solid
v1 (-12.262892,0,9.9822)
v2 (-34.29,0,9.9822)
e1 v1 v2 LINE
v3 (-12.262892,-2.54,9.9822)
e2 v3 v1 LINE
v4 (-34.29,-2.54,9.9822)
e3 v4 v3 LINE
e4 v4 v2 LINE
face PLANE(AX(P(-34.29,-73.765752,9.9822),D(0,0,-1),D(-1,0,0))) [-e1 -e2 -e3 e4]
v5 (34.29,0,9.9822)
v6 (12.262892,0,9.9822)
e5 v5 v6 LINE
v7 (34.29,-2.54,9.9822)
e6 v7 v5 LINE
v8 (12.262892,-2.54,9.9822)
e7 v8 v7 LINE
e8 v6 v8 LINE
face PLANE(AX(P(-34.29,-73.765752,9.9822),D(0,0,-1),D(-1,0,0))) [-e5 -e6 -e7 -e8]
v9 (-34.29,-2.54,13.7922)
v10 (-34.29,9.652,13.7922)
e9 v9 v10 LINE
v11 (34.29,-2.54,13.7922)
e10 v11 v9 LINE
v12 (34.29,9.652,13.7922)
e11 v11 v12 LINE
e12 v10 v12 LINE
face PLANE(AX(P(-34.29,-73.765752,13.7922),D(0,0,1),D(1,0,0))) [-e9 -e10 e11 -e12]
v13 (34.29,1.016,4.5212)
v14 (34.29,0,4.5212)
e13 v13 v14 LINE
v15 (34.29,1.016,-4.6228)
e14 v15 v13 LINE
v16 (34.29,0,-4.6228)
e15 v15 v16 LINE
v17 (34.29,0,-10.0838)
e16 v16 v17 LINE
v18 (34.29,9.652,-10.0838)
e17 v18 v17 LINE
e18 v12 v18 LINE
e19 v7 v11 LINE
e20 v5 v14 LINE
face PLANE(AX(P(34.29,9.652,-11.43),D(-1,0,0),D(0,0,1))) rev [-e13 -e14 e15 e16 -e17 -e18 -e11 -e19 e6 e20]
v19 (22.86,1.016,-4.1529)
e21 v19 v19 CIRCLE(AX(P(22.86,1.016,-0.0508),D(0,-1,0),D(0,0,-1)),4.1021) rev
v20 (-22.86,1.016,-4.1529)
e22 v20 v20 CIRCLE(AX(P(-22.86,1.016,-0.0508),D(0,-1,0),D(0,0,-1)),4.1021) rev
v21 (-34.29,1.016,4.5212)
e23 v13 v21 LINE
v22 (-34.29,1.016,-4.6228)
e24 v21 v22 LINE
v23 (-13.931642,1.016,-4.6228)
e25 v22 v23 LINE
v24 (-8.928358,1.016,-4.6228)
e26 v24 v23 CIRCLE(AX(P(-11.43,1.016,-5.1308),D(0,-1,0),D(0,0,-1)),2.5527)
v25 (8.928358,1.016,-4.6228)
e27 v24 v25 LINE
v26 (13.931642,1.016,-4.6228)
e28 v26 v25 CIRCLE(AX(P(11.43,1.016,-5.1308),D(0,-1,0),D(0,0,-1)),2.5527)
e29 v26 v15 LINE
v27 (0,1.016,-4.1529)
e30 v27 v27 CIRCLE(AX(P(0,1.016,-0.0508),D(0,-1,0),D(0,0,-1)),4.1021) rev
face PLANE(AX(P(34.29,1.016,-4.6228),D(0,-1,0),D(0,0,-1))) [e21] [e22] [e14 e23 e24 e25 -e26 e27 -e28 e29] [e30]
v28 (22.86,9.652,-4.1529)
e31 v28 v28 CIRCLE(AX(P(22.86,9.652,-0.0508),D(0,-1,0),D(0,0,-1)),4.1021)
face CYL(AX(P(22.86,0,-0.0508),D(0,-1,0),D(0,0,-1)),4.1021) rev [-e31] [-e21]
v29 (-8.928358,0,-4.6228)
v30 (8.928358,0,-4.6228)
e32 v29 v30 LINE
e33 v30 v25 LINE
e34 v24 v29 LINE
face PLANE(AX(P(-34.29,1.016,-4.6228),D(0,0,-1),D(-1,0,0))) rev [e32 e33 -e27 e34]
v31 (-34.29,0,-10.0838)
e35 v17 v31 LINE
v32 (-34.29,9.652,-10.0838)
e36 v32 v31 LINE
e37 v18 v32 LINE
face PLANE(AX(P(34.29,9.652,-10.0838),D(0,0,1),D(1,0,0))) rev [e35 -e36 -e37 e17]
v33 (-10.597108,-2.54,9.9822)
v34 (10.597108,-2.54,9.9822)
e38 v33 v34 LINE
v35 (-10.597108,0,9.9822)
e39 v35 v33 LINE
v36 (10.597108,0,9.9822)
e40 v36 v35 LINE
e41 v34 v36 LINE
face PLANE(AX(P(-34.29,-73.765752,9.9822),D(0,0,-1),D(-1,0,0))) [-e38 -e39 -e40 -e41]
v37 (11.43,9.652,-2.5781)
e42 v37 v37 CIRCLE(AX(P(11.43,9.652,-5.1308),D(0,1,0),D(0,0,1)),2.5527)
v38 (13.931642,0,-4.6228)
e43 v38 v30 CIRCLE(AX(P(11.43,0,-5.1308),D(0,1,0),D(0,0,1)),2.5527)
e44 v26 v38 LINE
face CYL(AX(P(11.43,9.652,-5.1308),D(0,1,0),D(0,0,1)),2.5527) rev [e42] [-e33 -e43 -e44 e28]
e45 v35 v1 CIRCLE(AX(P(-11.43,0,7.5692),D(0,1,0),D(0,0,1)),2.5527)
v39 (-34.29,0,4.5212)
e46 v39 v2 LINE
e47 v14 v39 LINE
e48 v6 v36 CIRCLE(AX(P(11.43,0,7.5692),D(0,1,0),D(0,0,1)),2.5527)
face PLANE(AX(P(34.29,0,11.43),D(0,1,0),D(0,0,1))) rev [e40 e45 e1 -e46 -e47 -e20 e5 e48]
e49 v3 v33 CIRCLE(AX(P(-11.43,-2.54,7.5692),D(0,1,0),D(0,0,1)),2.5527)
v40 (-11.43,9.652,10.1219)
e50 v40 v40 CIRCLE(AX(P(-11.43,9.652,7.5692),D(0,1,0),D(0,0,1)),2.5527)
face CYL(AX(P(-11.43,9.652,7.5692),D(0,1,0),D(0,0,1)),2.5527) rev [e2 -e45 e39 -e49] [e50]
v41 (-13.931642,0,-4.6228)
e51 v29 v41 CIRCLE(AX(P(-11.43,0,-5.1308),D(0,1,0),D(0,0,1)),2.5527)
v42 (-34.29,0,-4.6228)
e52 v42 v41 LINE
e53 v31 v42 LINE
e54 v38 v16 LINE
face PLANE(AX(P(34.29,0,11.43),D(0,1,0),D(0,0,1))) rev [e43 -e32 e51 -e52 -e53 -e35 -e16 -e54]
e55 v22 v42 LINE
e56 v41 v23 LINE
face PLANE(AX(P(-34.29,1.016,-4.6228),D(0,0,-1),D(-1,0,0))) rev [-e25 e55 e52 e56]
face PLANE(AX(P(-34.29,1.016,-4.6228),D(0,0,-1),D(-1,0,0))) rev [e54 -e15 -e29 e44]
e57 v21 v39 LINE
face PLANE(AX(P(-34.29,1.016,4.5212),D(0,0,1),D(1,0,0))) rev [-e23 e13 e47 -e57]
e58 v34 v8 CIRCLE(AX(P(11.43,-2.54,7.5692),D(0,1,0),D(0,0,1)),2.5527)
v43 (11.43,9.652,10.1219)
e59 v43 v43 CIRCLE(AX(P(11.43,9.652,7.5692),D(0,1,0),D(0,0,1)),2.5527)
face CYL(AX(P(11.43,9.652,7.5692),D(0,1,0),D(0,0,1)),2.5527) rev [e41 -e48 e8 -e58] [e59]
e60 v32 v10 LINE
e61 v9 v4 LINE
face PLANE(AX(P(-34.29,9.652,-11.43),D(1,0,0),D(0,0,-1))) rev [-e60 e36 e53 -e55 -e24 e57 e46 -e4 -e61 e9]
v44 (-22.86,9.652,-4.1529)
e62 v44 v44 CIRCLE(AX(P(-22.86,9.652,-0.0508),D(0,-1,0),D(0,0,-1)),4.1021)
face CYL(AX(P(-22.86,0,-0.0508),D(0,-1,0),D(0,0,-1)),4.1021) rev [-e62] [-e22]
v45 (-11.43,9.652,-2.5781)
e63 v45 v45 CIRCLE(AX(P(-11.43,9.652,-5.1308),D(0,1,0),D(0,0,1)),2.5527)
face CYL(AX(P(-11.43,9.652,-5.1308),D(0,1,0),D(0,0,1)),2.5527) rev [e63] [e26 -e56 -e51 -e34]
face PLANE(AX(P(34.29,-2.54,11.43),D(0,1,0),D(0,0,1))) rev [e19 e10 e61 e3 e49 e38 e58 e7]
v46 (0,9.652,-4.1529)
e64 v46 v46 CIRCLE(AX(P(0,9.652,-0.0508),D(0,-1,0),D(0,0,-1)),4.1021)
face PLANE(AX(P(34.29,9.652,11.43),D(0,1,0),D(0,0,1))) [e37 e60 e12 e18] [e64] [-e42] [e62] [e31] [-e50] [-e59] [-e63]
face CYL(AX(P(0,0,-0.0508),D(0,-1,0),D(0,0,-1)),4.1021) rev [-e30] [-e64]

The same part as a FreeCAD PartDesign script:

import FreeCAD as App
import Part
import Sketcher

V = App.Vector
Q = App.Units.Quantity

doc = App.newDocument("Part")
body = doc.addObject("PartDesign::Body", "Body")

sketch1 = body.newObject("Sketcher::SketchObject", "Sketch")
sketch1.AttachmentSupport = (doc.getObject("XZ_Plane"), [""])
sketch1.MapMode = "FlatFace"
sketch1.addGeometry([
    Part.LineSegment(V(-34, -11, 0), V(-34, 11, 0)),
    Part.LineSegment(V(-34, 11, 0), V(34, 11, 0)),
    Part.LineSegment(V(34, 11, 0), V(34, -11, 0)),
    Part.LineSegment(V(34, -11, 0), V(-34, -11, 0)),
], False)
sketch1.addConstraint([
    Sketcher.Constraint("Coincident", 0, 2, 1, 1),
    Sketcher.Constraint("Coincident", 1, 2, 2, 1),
    Sketcher.Constraint("Coincident", 2, 2, 3, 1),
    Sketcher.Constraint("Coincident", 3, 2, 0, 1),
    Sketcher.Constraint("Vertical", 0),
    Sketcher.Constraint("Horizontal", 1),
    Sketcher.Constraint("Vertical", 2),
    Sketcher.Constraint("Horizontal", 3),
    Sketcher.Constraint("Symmetric", 0, 2, 2, 2, -1, 1),
    Sketcher.Constraint("DistanceX", 1, 1, 1, 2, Q("2.7 in")),
    Sketcher.Constraint("DistanceY", 0, 1, 0, 2, Q("0.9 in")),
])
pad1 = body.newObject("PartDesign::Pad", "Pad")
pad1.Profile = sketch1
pad1.Length = Q("0.38 in")
pad1.Reversed = True

sketch2 = body.newObject("Sketcher::SketchObject", "Sketch001")
sketch2.AttachmentSupport = (doc.getObject("XZ_Plane"), [""])
sketch2.MapMode = "FlatFace"
sketch2.AttachmentOffset = App.Placement(V(0, 0, -0.38 * 25.4), App.Rotation())
sketch2.addGeometry([
    Part.LineSegment(V(-34.3, 10, 0), V(-34.3, 13.8, 0)),
    Part.LineSegment(V(-34.3, 13.8, 0), V(34.3, 13.8, 0)),
    Part.LineSegment(V(34.3, 13.8, 0), V(34.3, 10, 0)),
    Part.LineSegment(V(34.3, 10, 0), V(-34.3, 10, 0)),
], False)
sketch2.addConstraint([
    Sketcher.Constraint("Coincident", 0, 2, 1, 1),
    Sketcher.Constraint("Coincident", 1, 2, 2, 1),
    Sketcher.Constraint("Coincident", 2, 2, 3, 1),
    Sketcher.Constraint("Coincident", 3, 2, 0, 1),
    Sketcher.Constraint("Vertical", 0),
    Sketcher.Constraint("Horizontal", 1),
    Sketcher.Constraint("Vertical", 2),
    Sketcher.Constraint("Horizontal", 3),
    Sketcher.Constraint("DistanceX", 1, 1, 1, 2, Q("2.7 in")),
    Sketcher.Constraint("DistanceY", 0, 1, 0, 2, Q("0.15 in")),
    Sketcher.Constraint("DistanceX", 0, 2, -1, 1, Q("1.35 in")),
    Sketcher.Constraint("DistanceY", -1, 1, 0, 2, Q("0.543 in")),
])
pad2 = body.newObject("PartDesign::Pad", "Pad001")
pad2.Profile = sketch2
pad2.Length = Q("0.48 in")

sketch3 = body.newObject("Sketcher::SketchObject", "Sketch002")
sketch3.AttachmentSupport = (doc.getObject("XZ_Plane"), [""])
sketch3.MapMode = "FlatFace"
sketch3.addGeometry([
    Part.Circle(V(-22.9, -0.1, 0), V(0, 0, 1), 4.1),
    Part.Circle(V(22.9, -0.1, 0), V(0, 0, 1), 4.1),
    Part.Circle(V(0, -0.1, 0), V(0, 0, 1), 4.1),
], False)
sketch3.addConstraint([
    Sketcher.Constraint("Equal", 0, 1),
    Sketcher.Constraint("Equal", 1, 2),
    Sketcher.Constraint("Symmetric", 0, 3, 1, 3, -2),
    Sketcher.Constraint("PointOnObject", 2, 3, -2),
    Sketcher.Constraint("Horizontal", 1, 3, 2, 3),
    Sketcher.Constraint("Diameter", 0, Q("0.323 in")),
    Sketcher.Constraint("DistanceX", 0, 3, -1, 1, Q("0.9 in")),
    Sketcher.Constraint("DistanceY", 0, 3, -1, 1, Q("0.002 in")),
])
doc.recompute()
hole = body.newObject("PartDesign::Hole", "Hole")
hole.Profile = sketch3
hole.ThreadType = "None"
hole.Diameter = Q("0.323 in")
hole.DepthType = "ThroughAll"

sketch4 = body.newObject("Sketcher::SketchObject", "Sketch003")
sketch4.AttachmentSupport = (doc.getObject("XZ_Plane"), [""])
sketch4.MapMode = "FlatFace"
sketch4.addGeometry([
    Part.LineSegment(V(-34, 5, 0), V(-34, -5, 0)),
    Part.LineSegment(V(-34, -5, 0), V(34, -5, 0)),
    Part.LineSegment(V(34, -5, 0), V(34, 5, 0)),
    Part.LineSegment(V(34, 5, 0), V(-34, 5, 0)),
], False)
sketch4.addConstraint([
    Sketcher.Constraint("Coincident", 0, 2, 1, 1),
    Sketcher.Constraint("Coincident", 1, 2, 2, 1),
    Sketcher.Constraint("Coincident", 2, 2, 3, 1),
    Sketcher.Constraint("Coincident", 3, 2, 0, 1),
    Sketcher.Constraint("Vertical", 0),
    Sketcher.Constraint("Horizontal", 1),
    Sketcher.Constraint("Vertical", 2),
    Sketcher.Constraint("Horizontal", 3),
    Sketcher.Constraint("DistanceX", 1, 1, 1, 2, Q("2.7 in")),
    Sketcher.Constraint("DistanceY", 0, 2, 0, 1, Q("0.36 in")),
    Sketcher.Constraint("DistanceX", 0, 2, -1, 1, Q("1.35 in")),
    Sketcher.Constraint("DistanceY", 0, 2, -1, 1, Q("0.182 in")),
])
pocket1 = body.newObject("PartDesign::Pocket", "Pocket")
pocket1.Profile = sketch4
pocket1.Length = Q("0.04 in")

sketch5 = body.newObject("Sketcher::SketchObject", "Sketch004")
sketch5.AttachmentSupport = (doc.getObject("XZ_Plane"), [""])
sketch5.MapMode = "FlatFace"
sketch5.addGeometry([
    Part.LineSegment(V(-34.3, -10.1, 0), V(-34.3, -11.4, 0)),
    Part.LineSegment(V(-34.3, -11.4, 0), V(34.3, -11.4, 0)),
    Part.LineSegment(V(34.3, -11.4, 0), V(34.3, -10.1, 0)),
    Part.LineSegment(V(34.3, -10.1, 0), V(-34.3, -10.1, 0)),
], False)
sketch5.addConstraint([
    Sketcher.Constraint("Coincident", 0, 2, 1, 1),
    Sketcher.Constraint("Coincident", 1, 2, 2, 1),
    Sketcher.Constraint("Coincident", 2, 2, 3, 1),
    Sketcher.Constraint("Coincident", 3, 2, 0, 1),
    Sketcher.Constraint("Vertical", 0),
    Sketcher.Constraint("Horizontal", 1),
    Sketcher.Constraint("Vertical", 2),
    Sketcher.Constraint("Horizontal", 3),
    Sketcher.Constraint("DistanceX", 1, 1, 1, 2, Q("2.7 in")),
    Sketcher.Constraint("DistanceY", 0, 2, 0, 1, Q("0.053 in")),
    Sketcher.Constraint("DistanceX", 0, 2, -1, 1, Q("1.35 in")),
    Sketcher.Constraint("DistanceY", 0, 2, -1, 1, Q("0.45 in")),
])
pocket2 = body.newObject("PartDesign::Pocket", "Pocket001")
pocket2.Profile = sketch5
pocket2.Type = "ThroughAll"

sketch6 = body.newObject("Sketcher::SketchObject", "Sketch005")
sketch6.AttachmentSupport = (doc.getObject("XZ_Plane"), [""])
sketch6.MapMode = "FlatFace"
sketch6.AttachmentOffset = App.Placement(V(0, 0, -0.38 * 25.4), App.Rotation())
sketch6.addGeometry([
    Part.Circle(V(-11.4, -5.1, 0), V(0, 0, 1), 2.6),
    Part.Circle(V(-11.4, 7.6, 0), V(0, 0, 1), 2.6),
    Part.Circle(V(11.4, 7.6, 0), V(0, 0, 1), 2.6),
    Part.Circle(V(11.4, -5.1, 0), V(0, 0, 1), 2.6),
], False)
sketch6.addConstraint([
    Sketcher.Constraint("Equal", 0, 1),
    Sketcher.Constraint("Equal", 1, 2),
    Sketcher.Constraint("Equal", 2, 3),
    Sketcher.Constraint("Symmetric", 1, 3, 2, 3, -2),
    Sketcher.Constraint("Symmetric", 0, 3, 3, 3, -2),
    Sketcher.Constraint("Vertical", 0, 3, 1, 3),
    Sketcher.Constraint("Diameter", 0, Q("0.201 in")),
    Sketcher.Constraint("DistanceY", 0, 3, 1, 3, Q("0.5 in")),
    Sketcher.Constraint("DistanceX", 1, 3, 2, 3, Q("0.9 in")),
    Sketcher.Constraint("DistanceY", 0, 3, -1, 1, Q("0.202 in")),
])
doc.recompute()
hole2 = body.newObject("PartDesign::Hole", "Hole001")
hole2.Profile = sketch6
hole2.ThreadType = "None"
hole2.Diameter = Q("0.201 in")
hole2.DepthType = "Dimension"
hole2.Depth = Q("0.75 in")
hole2.DrillPoint = "Angled"
hole2.DrillPointAngle = 118
hole2.Reversed = True

doc.recompute()
